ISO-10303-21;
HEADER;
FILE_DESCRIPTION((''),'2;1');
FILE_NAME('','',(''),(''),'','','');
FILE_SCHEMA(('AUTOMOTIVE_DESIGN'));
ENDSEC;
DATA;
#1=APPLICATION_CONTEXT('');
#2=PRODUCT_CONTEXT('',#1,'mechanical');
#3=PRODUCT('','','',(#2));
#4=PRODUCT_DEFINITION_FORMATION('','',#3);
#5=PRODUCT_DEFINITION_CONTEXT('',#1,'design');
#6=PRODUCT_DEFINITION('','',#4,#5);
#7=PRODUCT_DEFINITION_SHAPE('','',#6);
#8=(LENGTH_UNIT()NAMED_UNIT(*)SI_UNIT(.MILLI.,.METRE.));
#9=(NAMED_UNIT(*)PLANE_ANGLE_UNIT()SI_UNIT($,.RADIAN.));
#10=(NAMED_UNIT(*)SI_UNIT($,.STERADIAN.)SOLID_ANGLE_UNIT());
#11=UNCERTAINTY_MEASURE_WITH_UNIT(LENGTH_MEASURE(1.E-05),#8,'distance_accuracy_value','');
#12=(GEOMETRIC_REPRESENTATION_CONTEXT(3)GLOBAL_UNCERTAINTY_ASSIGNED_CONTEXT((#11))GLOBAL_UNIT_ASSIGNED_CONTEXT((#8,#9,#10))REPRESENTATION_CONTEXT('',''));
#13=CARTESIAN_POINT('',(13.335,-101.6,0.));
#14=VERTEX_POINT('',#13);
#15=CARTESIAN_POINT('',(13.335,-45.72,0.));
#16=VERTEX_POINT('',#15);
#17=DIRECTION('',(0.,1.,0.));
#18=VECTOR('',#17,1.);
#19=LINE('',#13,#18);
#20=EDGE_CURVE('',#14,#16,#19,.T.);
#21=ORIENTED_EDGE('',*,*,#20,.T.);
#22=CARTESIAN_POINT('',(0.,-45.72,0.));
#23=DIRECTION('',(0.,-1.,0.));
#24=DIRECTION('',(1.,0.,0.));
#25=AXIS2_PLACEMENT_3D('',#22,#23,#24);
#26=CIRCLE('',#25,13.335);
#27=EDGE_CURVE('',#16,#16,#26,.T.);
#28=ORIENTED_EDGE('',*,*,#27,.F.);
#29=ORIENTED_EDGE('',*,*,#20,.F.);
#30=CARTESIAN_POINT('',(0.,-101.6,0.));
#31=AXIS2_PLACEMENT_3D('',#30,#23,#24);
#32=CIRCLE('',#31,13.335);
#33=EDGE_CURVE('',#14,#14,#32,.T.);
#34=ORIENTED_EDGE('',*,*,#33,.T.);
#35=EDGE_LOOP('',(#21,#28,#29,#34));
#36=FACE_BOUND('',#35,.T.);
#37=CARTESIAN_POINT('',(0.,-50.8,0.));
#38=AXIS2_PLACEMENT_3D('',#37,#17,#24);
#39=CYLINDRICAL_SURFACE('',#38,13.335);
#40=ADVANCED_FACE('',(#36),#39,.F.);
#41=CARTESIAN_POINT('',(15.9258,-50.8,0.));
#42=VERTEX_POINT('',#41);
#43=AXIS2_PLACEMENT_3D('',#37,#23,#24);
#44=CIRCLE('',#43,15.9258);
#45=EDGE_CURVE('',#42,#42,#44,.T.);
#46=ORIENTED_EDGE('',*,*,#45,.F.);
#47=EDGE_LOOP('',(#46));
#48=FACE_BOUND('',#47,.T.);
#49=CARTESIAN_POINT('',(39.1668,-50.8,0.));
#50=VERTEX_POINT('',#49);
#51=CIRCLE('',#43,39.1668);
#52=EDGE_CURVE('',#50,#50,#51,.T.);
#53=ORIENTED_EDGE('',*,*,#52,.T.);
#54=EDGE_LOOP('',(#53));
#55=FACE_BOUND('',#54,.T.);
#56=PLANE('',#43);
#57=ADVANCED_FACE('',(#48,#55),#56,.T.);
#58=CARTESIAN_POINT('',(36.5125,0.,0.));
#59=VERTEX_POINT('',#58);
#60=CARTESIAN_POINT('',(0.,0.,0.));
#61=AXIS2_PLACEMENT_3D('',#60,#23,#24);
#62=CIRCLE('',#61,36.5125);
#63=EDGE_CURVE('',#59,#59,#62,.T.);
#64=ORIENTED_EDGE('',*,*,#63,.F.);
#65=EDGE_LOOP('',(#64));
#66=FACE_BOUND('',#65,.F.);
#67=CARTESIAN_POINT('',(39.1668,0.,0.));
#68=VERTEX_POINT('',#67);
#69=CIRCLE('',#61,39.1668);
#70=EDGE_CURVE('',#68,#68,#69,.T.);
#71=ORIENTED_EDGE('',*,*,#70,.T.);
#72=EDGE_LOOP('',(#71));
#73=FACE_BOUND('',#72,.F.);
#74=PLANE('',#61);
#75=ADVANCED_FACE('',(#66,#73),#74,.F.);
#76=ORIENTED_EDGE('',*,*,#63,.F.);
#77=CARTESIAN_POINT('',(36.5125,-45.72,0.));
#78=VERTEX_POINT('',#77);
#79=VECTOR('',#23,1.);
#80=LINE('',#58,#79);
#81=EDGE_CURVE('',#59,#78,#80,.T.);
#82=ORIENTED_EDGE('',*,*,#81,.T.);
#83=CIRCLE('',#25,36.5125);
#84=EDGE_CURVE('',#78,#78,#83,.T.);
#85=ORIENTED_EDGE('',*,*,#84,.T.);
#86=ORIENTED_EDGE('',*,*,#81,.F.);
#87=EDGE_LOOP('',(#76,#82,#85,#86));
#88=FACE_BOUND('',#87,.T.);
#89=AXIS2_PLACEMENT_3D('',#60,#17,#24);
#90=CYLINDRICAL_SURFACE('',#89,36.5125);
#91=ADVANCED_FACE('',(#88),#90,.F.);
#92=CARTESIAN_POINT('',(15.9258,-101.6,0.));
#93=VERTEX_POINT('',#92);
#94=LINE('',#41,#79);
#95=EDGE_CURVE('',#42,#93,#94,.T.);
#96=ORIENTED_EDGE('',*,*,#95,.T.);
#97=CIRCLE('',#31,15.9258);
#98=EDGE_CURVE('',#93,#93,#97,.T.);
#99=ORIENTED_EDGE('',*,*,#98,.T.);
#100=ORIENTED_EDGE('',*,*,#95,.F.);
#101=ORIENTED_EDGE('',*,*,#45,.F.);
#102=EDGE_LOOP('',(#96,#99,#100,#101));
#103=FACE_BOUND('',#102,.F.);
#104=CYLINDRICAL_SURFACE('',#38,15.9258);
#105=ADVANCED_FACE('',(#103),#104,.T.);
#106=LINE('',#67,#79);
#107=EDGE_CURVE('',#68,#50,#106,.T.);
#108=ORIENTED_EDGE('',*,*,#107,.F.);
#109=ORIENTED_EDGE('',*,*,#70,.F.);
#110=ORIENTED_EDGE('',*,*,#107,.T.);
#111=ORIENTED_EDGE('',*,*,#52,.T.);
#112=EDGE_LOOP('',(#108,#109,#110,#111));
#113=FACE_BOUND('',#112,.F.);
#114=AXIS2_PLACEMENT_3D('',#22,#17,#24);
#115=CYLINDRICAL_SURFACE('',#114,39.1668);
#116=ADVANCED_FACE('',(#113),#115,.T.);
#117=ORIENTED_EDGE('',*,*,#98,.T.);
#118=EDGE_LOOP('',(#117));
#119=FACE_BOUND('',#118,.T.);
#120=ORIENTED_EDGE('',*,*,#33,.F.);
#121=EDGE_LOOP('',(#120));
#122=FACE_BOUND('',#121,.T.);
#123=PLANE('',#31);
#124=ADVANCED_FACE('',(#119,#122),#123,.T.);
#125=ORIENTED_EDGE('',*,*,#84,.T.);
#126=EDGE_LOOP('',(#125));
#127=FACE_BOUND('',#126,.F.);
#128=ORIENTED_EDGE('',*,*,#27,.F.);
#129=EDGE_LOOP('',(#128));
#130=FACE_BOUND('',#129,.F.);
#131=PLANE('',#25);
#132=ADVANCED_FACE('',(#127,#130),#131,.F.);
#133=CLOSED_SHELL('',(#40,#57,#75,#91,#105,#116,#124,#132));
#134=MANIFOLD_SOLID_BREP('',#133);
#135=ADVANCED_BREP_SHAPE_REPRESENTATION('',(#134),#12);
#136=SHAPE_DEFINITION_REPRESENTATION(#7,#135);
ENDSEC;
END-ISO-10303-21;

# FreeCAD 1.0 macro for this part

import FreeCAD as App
import Part
import Sketcher

V = App.Vector
Q = App.Units.Quantity

doc = App.newDocument("Part")
body = doc.addObject("PartDesign::Body", "Body")

# Sketch on XZ plane
sketch1 = doc.addObject("Sketcher::SketchObject", "Sketch")
body.addObject(sketch1)
sketch1.AttachmentSupport = (doc.XZ_Plane, [""])
sketch1.MapMode = "FlatFace"
sketch1.addGeometry(Part.Circle(V(0, 0, 0), V(0, 0, 1), 39.1668), False)
sketch1.addGeometry(Part.Circle(V(0, 0, 0), V(0, 0, 1), 36.5125), False)
sketch1.addConstraint(Sketcher.Constraint("Coincident", 0, 3, -1, 1))
sketch1.addConstraint(Sketcher.Constraint("Coincident", 1, 3, -1, 1))
sketch1.addConstraint(Sketcher.Constraint("Diameter", 0, Q("3.084 in")))
sketch1.addConstraint(Sketcher.Constraint("Diameter", 1, Q("2.875 in")))
pad1 = doc.addObject("PartDesign::Pad", "Pad")
body.addObject(pad1)
pad1.Profile = sketch1
pad1.Length = Q("1.8 in")

# Sketch on XZ plane
sketch2 = doc.addObject("Sketcher::SketchObject", "Sketch001")
body.addObject(sketch2)
sketch2.AttachmentSupport = (doc.XZ_Plane, [""])
sketch2.MapMode = "FlatFace"
sketch2.AttachmentOffset = App.Placement(V(0, 0, 1.8 * 25.4), App.Rotation())
sketch2.addGeometry(Part.Circle(V(0, 0, 0), V(0, 0, 1), 39.1668), False)
sketch2.addGeometry(Part.Circle(V(0, 0, 0), V(0, 0, 1), 13.335), False)
sketch2.addConstraint(Sketcher.Constraint("Coincident", 0, 3, -1, 1))
sketch2.addConstraint(Sketcher.Constraint("Coincident", 1, 3, -1, 1))
sketch2.addConstraint(Sketcher.Constraint("Diameter", 1, Q("1.05 in")))
sketch2.addConstraint(Sketcher.Constraint("Diameter", 0, Q("3.084 in")))
pad2 = doc.addObject("PartDesign::Pad", "Pad001")
body.addObject(pad2)
pad2.Profile = sketch2
pad2.Length = Q("0.2 in")

# Sketch on XZ plane
sketch3 = doc.addObject("Sketcher::SketchObject", "Sketch002")
body.addObject(sketch3)
sketch3.AttachmentSupport = (doc.XZ_Plane, [""])
sketch3.MapMode = "FlatFace"
sketch3.AttachmentOffset = App.Placement(V(0, 0, 2 * 25.4), App.Rotation())
sketch3.addGeometry(Part.Circle(V(0, 0, 0), V(0, 0, 1), 15.9258), False)
sketch3.addGeometry(Part.Circle(V(0, 0, 0), V(0, 0, 1), 13.335), False)
sketch3.addConstraint(Sketcher.Constraint("Coincident", 0, 3, -1, 1))
sketch3.addConstraint(Sketcher.Constraint("Coincident", 1, 3, -1, 1))
sketch3.addConstraint(Sketcher.Constraint("Diameter", 1, Q("1.05 in")))
sketch3.addConstraint(Sketcher.Constraint("Diameter", 0, Q("1.254 in")))
pad3 = doc.addObject("PartDesign::Pad", "Pad002")
body.addObject(pad3)
pad3.Profile = sketch3
pad3.Length = Q("2 in")

doc.recompute()
